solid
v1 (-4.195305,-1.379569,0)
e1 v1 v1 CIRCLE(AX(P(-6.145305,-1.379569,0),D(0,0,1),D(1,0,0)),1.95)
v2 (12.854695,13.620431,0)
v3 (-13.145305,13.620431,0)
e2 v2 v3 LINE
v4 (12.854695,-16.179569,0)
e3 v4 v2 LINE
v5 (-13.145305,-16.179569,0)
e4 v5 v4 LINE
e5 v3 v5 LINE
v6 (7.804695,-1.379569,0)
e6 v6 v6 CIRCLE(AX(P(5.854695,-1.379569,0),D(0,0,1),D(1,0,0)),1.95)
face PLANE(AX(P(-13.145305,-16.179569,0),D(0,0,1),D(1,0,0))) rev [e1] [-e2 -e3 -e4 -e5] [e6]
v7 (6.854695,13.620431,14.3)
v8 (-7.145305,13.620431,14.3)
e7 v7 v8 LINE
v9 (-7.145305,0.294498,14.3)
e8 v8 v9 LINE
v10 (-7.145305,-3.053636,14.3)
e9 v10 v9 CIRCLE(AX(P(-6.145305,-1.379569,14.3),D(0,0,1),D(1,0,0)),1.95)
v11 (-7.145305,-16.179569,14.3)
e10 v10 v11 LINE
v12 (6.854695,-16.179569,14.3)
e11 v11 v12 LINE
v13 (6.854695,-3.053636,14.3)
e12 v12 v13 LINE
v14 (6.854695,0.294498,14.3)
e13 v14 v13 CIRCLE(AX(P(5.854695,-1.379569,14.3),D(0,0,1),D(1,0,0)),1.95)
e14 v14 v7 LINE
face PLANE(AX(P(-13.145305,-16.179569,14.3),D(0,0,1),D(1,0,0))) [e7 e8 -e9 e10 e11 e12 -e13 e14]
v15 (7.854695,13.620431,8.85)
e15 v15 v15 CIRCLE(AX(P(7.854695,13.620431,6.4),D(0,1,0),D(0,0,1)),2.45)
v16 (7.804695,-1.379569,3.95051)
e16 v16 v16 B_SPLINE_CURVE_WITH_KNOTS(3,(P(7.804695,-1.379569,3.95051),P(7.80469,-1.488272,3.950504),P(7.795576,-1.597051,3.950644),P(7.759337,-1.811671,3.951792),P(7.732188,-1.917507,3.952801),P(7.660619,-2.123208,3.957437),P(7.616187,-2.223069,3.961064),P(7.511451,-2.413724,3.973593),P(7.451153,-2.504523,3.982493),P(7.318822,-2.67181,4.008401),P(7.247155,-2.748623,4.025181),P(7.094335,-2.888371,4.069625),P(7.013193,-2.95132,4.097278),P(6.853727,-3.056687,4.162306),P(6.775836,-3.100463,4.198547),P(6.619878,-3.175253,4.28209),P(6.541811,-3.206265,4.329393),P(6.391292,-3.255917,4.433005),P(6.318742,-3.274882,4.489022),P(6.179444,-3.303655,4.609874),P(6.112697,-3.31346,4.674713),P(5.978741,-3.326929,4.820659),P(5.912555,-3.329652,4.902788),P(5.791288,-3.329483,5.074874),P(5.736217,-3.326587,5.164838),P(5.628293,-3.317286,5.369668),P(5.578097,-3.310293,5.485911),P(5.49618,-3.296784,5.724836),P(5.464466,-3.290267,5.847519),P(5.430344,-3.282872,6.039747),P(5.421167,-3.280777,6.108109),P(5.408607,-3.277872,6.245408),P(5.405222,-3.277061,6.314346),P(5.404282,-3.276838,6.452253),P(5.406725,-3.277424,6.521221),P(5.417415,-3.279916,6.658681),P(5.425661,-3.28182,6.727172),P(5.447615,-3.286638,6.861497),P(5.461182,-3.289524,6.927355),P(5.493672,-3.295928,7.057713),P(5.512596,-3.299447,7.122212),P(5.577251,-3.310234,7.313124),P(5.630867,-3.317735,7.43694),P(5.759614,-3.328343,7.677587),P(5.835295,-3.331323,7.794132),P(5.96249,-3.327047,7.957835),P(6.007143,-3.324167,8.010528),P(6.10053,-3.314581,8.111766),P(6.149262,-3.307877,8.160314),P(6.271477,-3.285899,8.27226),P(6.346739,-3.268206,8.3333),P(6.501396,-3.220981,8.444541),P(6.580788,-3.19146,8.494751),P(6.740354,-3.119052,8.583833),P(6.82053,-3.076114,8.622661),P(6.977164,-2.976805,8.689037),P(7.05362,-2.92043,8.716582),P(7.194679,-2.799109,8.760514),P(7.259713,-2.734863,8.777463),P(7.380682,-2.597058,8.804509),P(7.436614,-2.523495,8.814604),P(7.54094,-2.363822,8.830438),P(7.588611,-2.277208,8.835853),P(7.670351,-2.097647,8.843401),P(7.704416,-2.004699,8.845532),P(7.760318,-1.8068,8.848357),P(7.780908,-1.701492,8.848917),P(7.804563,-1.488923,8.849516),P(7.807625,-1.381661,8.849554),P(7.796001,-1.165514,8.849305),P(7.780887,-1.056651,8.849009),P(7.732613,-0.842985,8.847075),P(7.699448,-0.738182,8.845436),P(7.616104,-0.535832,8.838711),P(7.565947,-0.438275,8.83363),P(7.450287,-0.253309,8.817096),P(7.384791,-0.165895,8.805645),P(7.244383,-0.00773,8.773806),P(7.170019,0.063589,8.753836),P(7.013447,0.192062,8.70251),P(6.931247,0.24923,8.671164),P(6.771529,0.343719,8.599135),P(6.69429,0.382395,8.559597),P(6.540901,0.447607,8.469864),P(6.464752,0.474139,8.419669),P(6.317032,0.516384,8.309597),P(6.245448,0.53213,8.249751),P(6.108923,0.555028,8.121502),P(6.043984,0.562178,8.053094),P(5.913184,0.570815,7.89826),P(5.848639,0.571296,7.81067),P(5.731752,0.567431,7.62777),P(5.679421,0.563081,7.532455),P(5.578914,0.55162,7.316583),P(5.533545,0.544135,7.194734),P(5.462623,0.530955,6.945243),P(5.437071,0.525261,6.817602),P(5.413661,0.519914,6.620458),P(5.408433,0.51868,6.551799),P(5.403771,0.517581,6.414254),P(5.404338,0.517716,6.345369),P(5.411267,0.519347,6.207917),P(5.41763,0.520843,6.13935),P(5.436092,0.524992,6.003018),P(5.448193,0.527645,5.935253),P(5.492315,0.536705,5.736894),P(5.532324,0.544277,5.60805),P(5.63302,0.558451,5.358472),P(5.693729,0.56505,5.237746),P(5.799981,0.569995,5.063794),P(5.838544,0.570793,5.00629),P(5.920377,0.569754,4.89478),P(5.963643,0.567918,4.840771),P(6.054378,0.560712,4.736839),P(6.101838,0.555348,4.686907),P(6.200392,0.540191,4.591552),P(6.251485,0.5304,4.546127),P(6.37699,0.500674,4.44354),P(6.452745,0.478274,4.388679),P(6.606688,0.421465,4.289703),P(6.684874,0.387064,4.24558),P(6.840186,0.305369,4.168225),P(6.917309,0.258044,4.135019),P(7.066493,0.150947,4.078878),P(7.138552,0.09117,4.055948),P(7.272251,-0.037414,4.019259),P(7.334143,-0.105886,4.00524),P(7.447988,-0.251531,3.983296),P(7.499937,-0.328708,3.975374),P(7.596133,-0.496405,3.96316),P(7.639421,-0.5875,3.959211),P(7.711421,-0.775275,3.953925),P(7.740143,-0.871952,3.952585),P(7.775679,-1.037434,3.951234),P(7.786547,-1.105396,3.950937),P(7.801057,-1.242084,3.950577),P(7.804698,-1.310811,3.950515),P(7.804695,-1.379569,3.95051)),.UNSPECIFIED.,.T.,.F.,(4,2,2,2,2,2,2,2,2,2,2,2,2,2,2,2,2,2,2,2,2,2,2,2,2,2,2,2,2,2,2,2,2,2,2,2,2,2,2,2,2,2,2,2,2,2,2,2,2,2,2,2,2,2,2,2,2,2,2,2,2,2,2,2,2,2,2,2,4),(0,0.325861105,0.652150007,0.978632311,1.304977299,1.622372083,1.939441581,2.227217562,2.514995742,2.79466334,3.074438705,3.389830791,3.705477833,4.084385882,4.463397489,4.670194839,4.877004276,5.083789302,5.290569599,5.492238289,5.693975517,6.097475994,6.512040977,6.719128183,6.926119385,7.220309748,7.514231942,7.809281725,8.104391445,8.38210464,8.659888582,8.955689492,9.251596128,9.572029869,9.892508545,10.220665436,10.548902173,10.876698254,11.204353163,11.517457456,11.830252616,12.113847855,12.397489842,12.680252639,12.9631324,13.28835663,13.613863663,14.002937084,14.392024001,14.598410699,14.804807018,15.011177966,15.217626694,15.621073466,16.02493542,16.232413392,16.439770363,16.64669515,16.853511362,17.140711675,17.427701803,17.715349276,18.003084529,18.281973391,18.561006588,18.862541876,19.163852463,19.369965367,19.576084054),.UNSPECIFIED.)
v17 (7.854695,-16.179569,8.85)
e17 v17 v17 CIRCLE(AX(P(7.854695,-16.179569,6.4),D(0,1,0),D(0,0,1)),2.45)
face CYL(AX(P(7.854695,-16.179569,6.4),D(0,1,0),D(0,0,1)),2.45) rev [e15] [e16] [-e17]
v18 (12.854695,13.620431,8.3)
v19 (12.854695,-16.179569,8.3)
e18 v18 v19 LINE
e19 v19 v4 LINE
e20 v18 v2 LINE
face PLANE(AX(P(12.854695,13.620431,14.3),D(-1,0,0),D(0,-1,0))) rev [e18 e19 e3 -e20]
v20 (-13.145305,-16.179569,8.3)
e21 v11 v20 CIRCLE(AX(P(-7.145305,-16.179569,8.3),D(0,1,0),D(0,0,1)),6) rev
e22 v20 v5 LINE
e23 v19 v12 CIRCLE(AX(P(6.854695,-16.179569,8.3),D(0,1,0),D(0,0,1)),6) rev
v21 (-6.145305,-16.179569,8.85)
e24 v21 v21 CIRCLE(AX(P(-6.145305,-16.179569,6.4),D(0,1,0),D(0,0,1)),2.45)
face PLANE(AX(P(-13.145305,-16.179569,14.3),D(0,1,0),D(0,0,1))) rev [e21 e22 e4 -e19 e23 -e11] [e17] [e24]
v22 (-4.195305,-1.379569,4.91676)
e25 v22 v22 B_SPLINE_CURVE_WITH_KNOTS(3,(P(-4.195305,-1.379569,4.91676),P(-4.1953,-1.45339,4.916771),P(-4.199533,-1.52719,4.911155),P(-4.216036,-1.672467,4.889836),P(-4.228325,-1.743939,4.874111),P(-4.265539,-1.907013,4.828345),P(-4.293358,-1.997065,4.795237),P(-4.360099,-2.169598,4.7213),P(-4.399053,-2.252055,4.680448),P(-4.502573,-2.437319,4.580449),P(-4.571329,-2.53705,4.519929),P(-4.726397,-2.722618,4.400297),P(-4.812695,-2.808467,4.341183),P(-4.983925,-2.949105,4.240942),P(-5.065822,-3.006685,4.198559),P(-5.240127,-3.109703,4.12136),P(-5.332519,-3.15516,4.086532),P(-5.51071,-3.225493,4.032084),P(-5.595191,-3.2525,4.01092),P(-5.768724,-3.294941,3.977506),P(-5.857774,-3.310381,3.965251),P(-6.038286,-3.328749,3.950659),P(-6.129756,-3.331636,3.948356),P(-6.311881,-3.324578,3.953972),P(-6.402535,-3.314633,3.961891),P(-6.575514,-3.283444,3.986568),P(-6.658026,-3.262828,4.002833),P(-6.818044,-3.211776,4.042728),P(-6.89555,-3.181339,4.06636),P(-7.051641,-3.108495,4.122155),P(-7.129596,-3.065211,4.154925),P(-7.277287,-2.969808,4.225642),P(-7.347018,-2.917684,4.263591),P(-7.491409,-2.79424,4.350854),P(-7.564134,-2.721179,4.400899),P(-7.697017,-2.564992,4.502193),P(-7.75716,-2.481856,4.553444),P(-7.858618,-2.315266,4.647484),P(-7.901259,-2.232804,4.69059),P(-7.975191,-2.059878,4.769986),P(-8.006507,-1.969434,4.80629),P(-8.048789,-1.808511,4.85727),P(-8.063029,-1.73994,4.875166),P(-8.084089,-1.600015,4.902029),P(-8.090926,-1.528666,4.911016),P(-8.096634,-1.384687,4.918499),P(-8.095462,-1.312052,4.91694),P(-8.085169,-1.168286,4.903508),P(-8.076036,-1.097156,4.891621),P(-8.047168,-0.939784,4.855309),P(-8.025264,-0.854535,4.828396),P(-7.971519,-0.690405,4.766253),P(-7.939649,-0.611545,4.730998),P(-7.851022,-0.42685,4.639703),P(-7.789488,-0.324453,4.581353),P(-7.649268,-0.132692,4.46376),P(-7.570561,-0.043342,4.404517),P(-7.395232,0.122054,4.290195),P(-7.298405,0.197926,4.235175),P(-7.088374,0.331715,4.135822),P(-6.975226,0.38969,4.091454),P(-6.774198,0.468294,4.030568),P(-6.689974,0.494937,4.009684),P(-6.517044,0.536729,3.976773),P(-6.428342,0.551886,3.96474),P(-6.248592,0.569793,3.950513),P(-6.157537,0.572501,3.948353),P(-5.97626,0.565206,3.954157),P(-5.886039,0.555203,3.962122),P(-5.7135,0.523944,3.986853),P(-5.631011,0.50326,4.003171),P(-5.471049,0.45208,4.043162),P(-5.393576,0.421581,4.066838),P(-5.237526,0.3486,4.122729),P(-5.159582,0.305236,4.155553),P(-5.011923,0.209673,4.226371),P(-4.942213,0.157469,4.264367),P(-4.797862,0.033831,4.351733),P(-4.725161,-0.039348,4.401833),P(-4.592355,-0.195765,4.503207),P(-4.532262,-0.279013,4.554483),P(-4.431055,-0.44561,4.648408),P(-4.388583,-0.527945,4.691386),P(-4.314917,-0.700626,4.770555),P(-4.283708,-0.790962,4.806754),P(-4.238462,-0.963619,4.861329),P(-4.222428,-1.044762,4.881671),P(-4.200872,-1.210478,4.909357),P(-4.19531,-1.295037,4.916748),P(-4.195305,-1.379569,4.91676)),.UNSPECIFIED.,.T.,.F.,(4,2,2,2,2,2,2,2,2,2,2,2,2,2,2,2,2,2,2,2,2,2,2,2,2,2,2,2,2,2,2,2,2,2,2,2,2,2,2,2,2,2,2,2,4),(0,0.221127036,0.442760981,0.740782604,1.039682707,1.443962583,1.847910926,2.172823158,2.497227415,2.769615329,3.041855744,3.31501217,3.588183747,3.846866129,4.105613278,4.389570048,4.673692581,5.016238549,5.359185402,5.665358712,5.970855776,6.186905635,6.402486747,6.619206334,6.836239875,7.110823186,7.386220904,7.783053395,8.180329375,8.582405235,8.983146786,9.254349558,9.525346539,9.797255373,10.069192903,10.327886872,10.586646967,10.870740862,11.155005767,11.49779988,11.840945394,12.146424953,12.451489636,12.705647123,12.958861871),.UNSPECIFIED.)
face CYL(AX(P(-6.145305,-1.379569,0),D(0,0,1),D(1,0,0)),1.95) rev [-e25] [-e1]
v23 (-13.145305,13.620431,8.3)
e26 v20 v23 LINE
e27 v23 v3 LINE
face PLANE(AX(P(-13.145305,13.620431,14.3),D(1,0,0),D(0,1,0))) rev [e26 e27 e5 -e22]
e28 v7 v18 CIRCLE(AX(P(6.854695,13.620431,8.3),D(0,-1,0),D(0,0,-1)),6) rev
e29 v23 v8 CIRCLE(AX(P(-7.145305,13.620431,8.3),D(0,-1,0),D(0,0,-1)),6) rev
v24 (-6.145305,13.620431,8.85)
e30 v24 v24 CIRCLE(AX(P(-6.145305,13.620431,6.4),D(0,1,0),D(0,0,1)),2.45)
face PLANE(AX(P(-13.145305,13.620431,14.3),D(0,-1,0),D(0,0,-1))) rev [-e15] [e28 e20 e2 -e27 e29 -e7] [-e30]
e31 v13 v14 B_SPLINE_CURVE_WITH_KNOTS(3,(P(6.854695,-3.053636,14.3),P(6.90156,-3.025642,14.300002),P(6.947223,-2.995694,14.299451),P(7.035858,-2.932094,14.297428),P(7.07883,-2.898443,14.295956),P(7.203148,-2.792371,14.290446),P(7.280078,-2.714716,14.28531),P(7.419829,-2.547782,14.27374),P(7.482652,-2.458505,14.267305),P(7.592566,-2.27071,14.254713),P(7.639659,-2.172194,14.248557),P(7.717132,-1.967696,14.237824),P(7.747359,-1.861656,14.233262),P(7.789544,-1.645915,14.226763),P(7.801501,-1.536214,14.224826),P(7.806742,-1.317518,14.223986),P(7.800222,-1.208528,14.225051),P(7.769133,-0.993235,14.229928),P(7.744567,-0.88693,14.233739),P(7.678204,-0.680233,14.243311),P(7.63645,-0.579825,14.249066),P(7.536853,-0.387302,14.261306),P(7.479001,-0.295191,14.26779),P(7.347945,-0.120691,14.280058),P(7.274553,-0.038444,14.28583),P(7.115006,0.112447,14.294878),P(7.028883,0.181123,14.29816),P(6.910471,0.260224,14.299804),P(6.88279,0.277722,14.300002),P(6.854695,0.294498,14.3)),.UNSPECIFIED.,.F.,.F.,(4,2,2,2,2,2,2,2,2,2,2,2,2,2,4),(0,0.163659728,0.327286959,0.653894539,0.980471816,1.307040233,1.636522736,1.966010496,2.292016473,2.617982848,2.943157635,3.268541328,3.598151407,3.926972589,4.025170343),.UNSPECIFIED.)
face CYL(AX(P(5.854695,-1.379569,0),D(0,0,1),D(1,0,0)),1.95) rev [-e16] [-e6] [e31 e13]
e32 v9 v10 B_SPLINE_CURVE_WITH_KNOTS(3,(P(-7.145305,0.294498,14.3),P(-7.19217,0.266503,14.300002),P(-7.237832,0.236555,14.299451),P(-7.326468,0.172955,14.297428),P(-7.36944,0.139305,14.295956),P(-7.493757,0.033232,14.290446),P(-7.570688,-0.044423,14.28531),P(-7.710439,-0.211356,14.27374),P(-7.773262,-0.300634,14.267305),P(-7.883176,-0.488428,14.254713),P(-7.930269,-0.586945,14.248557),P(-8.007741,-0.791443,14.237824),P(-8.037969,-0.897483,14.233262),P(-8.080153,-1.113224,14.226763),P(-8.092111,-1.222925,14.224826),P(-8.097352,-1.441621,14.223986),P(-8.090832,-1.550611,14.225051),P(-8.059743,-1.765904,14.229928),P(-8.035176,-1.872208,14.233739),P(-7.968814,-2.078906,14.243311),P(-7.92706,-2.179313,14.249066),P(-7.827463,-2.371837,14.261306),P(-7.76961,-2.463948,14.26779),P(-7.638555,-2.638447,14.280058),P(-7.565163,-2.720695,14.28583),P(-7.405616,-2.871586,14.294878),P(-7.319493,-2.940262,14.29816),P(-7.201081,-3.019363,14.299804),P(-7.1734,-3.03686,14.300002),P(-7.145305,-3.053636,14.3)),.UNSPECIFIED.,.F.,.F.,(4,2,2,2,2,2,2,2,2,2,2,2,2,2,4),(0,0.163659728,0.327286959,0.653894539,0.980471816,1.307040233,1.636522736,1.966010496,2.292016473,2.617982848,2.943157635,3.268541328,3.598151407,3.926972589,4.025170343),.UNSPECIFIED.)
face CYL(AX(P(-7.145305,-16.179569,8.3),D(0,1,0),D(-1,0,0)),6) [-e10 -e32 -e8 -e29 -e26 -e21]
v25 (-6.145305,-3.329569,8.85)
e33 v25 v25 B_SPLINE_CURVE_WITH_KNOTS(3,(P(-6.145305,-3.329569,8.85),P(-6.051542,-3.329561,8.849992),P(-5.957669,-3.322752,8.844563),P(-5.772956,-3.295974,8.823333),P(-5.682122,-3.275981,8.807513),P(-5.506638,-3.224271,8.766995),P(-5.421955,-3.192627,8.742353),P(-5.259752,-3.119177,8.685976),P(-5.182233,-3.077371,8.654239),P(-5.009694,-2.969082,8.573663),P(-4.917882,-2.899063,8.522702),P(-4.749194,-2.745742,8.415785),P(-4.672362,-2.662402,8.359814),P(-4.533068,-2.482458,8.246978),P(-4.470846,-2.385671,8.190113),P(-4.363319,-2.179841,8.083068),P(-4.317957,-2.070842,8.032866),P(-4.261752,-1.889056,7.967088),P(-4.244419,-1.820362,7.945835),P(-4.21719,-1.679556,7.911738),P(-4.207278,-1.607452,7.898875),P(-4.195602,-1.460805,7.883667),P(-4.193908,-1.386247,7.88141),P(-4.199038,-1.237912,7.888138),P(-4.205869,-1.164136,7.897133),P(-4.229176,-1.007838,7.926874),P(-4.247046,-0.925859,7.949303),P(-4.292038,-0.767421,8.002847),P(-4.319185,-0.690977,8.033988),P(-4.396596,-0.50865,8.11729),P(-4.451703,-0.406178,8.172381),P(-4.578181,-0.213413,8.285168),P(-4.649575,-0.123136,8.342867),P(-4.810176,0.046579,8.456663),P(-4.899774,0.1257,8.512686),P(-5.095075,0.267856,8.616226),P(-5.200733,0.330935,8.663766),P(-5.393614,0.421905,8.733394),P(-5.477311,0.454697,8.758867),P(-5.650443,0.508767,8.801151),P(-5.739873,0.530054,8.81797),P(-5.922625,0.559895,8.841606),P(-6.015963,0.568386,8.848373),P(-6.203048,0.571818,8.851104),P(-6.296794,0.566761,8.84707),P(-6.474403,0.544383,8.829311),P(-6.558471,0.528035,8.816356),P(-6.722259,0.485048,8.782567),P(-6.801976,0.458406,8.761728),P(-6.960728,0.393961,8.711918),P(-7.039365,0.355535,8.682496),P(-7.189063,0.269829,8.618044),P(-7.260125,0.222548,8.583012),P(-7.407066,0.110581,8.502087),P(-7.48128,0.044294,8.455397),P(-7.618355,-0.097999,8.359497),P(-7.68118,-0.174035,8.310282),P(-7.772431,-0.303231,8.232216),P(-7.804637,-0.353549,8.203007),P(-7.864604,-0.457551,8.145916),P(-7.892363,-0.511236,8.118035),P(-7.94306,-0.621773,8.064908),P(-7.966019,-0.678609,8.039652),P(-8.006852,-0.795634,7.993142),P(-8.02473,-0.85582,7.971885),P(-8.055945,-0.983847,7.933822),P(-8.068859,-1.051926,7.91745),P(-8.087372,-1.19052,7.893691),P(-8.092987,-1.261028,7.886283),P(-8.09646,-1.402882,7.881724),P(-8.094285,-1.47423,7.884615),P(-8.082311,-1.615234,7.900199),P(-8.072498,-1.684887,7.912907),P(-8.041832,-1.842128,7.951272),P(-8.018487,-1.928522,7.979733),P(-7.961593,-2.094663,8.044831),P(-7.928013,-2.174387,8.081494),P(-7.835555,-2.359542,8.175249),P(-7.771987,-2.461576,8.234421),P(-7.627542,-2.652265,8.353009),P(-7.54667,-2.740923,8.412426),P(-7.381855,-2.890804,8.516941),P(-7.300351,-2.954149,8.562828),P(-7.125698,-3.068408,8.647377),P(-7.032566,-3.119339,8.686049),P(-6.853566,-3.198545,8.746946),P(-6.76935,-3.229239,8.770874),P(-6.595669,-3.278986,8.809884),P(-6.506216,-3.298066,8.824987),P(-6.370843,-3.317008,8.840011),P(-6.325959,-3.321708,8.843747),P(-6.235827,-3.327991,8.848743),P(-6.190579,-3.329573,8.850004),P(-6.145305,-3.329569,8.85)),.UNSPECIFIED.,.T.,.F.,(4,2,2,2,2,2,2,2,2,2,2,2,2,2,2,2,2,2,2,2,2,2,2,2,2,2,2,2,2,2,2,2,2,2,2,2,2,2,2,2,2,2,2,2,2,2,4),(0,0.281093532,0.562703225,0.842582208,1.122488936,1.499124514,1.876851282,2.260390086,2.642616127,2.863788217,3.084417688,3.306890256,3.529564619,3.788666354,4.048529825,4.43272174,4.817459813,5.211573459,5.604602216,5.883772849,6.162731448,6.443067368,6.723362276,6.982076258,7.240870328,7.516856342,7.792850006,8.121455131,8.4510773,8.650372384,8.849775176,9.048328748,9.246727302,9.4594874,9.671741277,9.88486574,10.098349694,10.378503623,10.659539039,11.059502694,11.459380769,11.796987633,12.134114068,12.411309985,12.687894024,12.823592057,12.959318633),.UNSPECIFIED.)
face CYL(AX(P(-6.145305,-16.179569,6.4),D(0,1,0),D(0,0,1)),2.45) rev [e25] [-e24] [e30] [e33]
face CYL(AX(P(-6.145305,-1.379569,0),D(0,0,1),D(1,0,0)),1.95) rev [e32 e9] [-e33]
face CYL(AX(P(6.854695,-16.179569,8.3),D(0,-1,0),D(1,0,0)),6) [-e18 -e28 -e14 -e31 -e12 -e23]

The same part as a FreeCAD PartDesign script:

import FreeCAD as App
import Part
import Sketcher

V = App.Vector


def edges_at(feature, points):
    """Names of the edges that pass closest to the given points."""
    edges = feature.Shape.Edges
    near = lambda p: min(range(len(edges)), key=lambda i: edges[i].distToShape(Part.Vertex(*p))[0])
    return sorted({f"Edge{near(p) + 1}" for p in points})


def add_polygon(sketch, points):
    """Adds a closed chain of lines whose ends are joined by coincident constraints."""
    first, n = sketch.GeometryCount, len(points)
    for a, b in zip(points, points[1:] + points[:1]):
        sketch.addGeometry(Part.LineSegment(App.Vector(*a, 0), App.Vector(*b, 0)), False)
    for i in range(n):
        sketch.addConstraint(Sketcher.Constraint("Coincident", first + i, 2, first + (i + 1) % n, 1))

doc = App.newDocument("Part")
body = doc.addObject("PartDesign::Body", "Body")

# Sketch on XY plane
sketch1 = body.newObject("Sketcher::SketchObject", "Sketch")
sketch1.AttachmentSupport = (doc.getObject("XY_Plane"), [""])
sketch1.MapMode = "FlatFace"
add_polygon(sketch1, [(-13, 14), (-13, -16), (13, -16), (13, 14)])  # lines 0-3
sketch1.addConstraint([
    Sketcher.Constraint("Vertical", 0),
    Sketcher.Constraint("Horizontal", 1),
    Sketcher.Constraint("Vertical", 2),
    Sketcher.Constraint("Horizontal", 3),
    Sketcher.Constraint("DistanceX", 1, 1, 1, 2, 26.0),
    Sketcher.Constraint("DistanceY", 0, 2, 0, 1, 29.8),
    Sketcher.Constraint("DistanceY", 0, 2, -1, 1, 16.179569),
    Sketcher.Constraint("DistanceX", 0, 2, -1, 1, 13.145305),
])
pad1 = body.newObject("PartDesign::Pad", "Pad")
pad1.Profile = sketch1
pad1.Length = 14.3
doc.recompute()

fillet = body.newObject("PartDesign::Fillet", "Fillet")
fillet.Base = (pad1, edges_at(pad1, [(12.855, -1.28, 14.3), (-13.145, -1.28, 14.3)]))
fillet.Radius = 6

# Sketch on XZ plane
sketch2 = body.newObject("Sketcher::SketchObject", "Sketch001")
sketch2.AttachmentSupport = (doc.getObject("XZ_Plane"), [""])
sketch2.MapMode = "FlatFace"
sketch2.AttachmentOffset = App.Placement(V(0, 0, -13.620431), App.Rotation())
sketch2.addGeometry([
    Part.Circle(V(7.9, 6.4, 0), V(0, 0, 1), 2.5),
    Part.Circle(V(-6.1, 6.4, 0), V(0, 0, 1), 2.5),
], False)
sketch2.addConstraint([
    Sketcher.Constraint("Equal", 0, 1),
    Sketcher.Constraint("Horizontal", 0, 3, 1, 3),
    Sketcher.Constraint("Diameter", 0, 4.9),
    Sketcher.Constraint("DistanceX", 1, 3, 0, 3, 14.0),
    Sketcher.Constraint("DistanceY", -1, 1, 0, 3, 6.4),
    Sketcher.Constraint("DistanceX", -1, 1, 0, 3, 7.854695),
])
pocket1 = body.newObject("PartDesign::Pocket", "Pocket")
pocket1.Profile = sketch2
pocket1.Type = "ThroughAll"
pocket1.Reversed = True

# Sketch on XY plane
sketch3 = body.newObject("Sketcher::SketchObject", "Sketch002")
sketch3.AttachmentSupport = (doc.getObject("XY_Plane"), [""])
sketch3.MapMode = "FlatFace"
sketch3.AttachmentOffset = App.Placement(V(0, 0, 14.3), App.Rotation())
sketch3.addGeometry([
    Part.Circle(V(-6.1, -1.4, 0), V(0, 0, 1), 1.9),
    Part.Circle(V(5.9, -1.4, 0), V(0, 0, 1), 1.9),
], False)
sketch3.addConstraint([
    Sketcher.Constraint("Equal", 0, 1),
    Sketcher.Constraint("Horizontal", 0, 3, 1, 3),
    Sketcher.Constraint("Diameter", 0, 3.9),
    Sketcher.Constraint("DistanceX", 0, 3, 1, 3, 12.0),
    Sketcher.Constraint("DistanceY", 0, 3, -1, 1, 1.379569),
    Sketcher.Constraint("DistanceX", 0, 3, -1, 1, 6.145305),
])
pocket2 = body.newObject("PartDesign::Pocket", "Pocket001")
pocket2.Profile = sketch3
pocket2.Type = "ThroughAll"

doc.recompute()
